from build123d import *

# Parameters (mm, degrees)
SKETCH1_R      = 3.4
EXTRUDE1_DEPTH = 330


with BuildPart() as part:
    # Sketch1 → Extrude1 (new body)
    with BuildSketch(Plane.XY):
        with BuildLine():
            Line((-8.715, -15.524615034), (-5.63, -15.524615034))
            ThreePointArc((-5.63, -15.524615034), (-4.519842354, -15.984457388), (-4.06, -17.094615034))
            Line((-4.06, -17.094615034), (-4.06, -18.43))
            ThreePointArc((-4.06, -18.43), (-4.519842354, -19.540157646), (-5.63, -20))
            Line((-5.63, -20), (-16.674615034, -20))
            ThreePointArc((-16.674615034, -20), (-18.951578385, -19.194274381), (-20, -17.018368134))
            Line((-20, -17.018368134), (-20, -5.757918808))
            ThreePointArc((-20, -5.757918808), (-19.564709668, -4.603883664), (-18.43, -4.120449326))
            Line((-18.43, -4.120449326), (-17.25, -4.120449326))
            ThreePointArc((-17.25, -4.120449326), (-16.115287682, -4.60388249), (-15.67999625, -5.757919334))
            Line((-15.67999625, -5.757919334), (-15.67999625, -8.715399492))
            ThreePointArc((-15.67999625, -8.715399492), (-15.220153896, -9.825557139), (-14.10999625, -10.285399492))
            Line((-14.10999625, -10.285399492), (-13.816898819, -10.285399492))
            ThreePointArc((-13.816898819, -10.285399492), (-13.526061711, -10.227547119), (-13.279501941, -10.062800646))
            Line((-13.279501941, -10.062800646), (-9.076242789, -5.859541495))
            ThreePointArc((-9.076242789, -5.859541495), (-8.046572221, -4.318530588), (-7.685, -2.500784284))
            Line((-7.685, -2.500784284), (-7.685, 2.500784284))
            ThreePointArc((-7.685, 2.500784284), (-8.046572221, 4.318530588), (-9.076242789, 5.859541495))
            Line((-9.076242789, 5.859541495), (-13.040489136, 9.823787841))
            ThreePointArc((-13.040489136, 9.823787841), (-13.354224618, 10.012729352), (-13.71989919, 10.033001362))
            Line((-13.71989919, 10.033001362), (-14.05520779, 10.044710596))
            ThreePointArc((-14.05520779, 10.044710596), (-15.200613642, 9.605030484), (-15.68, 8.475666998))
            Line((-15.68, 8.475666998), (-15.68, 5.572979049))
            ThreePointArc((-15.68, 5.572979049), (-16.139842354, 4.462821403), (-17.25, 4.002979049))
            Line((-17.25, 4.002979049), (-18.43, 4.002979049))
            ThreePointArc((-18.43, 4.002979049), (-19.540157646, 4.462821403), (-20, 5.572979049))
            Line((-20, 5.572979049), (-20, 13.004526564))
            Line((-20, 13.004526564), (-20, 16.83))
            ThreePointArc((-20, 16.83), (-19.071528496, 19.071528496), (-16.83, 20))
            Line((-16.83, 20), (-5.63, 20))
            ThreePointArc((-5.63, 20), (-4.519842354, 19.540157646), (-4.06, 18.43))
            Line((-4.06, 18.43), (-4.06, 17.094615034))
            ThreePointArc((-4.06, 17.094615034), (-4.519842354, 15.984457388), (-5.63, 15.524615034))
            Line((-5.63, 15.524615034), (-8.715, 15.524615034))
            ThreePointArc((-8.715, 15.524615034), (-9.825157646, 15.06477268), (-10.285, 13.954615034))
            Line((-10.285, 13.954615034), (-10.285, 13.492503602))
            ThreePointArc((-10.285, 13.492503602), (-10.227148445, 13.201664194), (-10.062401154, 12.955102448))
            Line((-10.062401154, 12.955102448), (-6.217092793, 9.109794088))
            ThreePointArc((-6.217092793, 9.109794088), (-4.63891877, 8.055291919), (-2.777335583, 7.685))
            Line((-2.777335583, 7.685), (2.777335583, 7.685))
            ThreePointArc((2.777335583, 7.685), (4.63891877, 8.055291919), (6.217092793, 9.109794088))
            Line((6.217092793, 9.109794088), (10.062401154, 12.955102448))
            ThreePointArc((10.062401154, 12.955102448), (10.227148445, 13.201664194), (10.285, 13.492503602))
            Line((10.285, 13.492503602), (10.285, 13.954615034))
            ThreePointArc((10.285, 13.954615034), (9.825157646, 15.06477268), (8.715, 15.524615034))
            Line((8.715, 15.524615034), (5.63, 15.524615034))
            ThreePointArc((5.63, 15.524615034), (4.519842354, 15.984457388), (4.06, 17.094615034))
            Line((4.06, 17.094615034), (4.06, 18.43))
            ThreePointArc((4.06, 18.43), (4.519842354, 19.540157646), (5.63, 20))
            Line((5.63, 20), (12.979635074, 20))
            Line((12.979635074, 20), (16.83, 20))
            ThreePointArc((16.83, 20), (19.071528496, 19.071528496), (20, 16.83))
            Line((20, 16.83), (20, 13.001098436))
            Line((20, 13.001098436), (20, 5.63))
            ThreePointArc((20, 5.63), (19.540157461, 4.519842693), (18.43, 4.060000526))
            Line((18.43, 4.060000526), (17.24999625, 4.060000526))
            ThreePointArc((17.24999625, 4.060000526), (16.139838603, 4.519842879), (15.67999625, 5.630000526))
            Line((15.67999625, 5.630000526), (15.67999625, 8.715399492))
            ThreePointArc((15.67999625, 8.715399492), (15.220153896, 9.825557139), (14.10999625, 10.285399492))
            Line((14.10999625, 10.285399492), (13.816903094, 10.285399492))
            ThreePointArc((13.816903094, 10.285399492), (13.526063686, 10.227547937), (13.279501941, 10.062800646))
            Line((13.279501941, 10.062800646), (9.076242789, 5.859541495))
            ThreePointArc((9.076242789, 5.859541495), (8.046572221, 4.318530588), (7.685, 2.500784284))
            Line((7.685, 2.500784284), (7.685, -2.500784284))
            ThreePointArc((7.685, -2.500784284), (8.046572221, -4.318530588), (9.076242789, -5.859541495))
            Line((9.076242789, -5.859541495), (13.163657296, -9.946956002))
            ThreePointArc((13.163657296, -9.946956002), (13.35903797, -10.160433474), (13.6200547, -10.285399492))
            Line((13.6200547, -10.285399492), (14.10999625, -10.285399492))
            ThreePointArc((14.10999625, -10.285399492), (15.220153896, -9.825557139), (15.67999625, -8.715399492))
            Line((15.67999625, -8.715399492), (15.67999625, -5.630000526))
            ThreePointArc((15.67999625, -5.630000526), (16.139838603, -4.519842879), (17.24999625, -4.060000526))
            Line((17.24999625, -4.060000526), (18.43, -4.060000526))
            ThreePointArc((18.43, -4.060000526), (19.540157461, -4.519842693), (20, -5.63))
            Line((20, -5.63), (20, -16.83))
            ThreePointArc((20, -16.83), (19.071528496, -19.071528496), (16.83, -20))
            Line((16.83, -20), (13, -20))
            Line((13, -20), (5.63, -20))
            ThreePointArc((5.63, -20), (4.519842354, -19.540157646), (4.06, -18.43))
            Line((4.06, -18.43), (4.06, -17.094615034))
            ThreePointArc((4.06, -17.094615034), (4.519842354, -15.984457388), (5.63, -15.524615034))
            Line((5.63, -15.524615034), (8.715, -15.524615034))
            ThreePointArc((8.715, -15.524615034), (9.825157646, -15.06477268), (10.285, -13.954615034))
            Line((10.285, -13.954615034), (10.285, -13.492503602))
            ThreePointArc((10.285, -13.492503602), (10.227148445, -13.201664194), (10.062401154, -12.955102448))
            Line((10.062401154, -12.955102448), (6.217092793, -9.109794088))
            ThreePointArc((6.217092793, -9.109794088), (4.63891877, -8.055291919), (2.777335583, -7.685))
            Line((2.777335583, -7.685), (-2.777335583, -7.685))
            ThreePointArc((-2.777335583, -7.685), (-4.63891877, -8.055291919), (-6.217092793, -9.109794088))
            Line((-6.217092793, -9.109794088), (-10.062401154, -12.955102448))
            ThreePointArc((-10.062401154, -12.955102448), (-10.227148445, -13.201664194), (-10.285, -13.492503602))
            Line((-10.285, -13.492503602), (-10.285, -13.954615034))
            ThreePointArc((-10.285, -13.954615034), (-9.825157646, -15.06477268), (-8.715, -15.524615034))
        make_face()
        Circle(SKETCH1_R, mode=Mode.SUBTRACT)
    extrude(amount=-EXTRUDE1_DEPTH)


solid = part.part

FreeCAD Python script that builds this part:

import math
import FreeCAD as App
import Part
import Sketcher
from FreeCAD import Vector
Q = App.Units.Quantity

doc = App.newDocument("Part")
params = doc.addObject("Spreadsheet::Sheet", "Params")
for row, (alias, value) in enumerate([
    ("sketch1_diameter", "6.8 mm"),
    ("sketch1_radius", "1.57 mm"),
    ("sketch1_radius2", "0.76 mm"),
    ("sketch1_radius3", "3.17 mm"),
    ("sketch1_radius4", "4.75 mm"),
    ("pad1_length", "330 mm"),
], start=1):
    params.set(f"A{row}", alias)
    params.set(f"B{row}", "=" + value)
    params.setAlias(f"B{row}", alias)

body = doc.addObject("PartDesign::Body", "Body")

sketch1 = body.newObject("Sketcher::SketchObject", "Sketch")
sketch1.AttachmentSupport = (doc.getObject("XY_Plane"), [""])
sketch1.MapMode = "FlatFace"
sketch1.addGeometry([
    Part.LineSegment(Vector(-5.63, -15.52, 0), Vector(-8.71, -15.52, 0)),
    Part.ArcOfCircle(Part.Circle(Vector(-8.71, -13.95, 0), Vector(0, 0, 1), 1.57), math.radians(-180), math.radians(-90)),
    Part.LineSegment(Vector(-10.29, -13.95, 0), Vector(-10.29, -13.49, 0)),
    Part.ArcOfCircle(Part.Circle(Vector(-9.52, -13.49, 0), Vector(0, 0, 1), 0.76), math.radians(135), math.radians(180)),
    Part.LineSegment(Vector(-10.06, -12.96, 0), Vector(-6.22, -9.11, 0)),
    Part.ArcOfCircle(Part.Circle(Vector(-2.78, -12.55, 0), Vector(0, 0, 1), 4.86), math.radians(90), math.radians(135)),
    Part.LineSegment(Vector(-2.78, -7.68, 0), Vector(2.78, -7.68, 0)),
    Part.ArcOfCircle(Part.Circle(Vector(2.78, -12.55, 0), Vector(0, 0, 1), 4.86), math.radians(45), math.radians(90)),
    Part.LineSegment(Vector(6.22, -9.11, 0), Vector(10.06, -12.96, 0)),
    Part.ArcOfCircle(Part.Circle(Vector(9.52, -13.49, 0), Vector(0, 0, 1), 0.76), math.radians(0), math.radians(45)),
    Part.LineSegment(Vector(10.29, -13.49, 0), Vector(10.29, -13.95, 0)),
    Part.ArcOfCircle(Part.Circle(Vector(8.71, -13.95, 0), Vector(0, 0, 1), 1.57), math.radians(-90), math.radians(0)),
    Part.LineSegment(Vector(8.71, -15.52, 0), Vector(5.63, -15.52, 0)),
    Part.ArcOfCircle(Part.Circle(Vector(5.63, -17.09, 0), Vector(0, 0, 1), 1.57), math.radians(90), math.radians(180)),
    Part.LineSegment(Vector(4.06, -17.09, 0), Vector(4.06, -18.43, 0)),
    Part.ArcOfCircle(Part.Circle(Vector(5.63, -18.43, 0), Vector(0, 0, 1), 1.57), math.radians(-180), math.radians(-90)),
    Part.LineSegment(Vector(5.63, -20, 0), Vector(16.83, -20, 0)),
    Part.ArcOfCircle(Part.Circle(Vector(16.83, -16.83, 0), Vector(0, 0, 1), 3.17), math.radians(-90), math.radians(0)),
    Part.LineSegment(Vector(20, -16.83, 0), Vector(20, -5.63, 0)),
    Part.ArcOfCircle(Part.Circle(Vector(18.43, -5.63, 0), Vector(0, 0, 1), 1.57), math.radians(0), math.radians(90)),
    Part.LineSegment(Vector(18.43, -4.06, 0), Vector(17.25, -4.06, 0)),
    Part.ArcOfCircle(Part.Circle(Vector(17.25, -5.63, 0), Vector(0, 0, 1), 1.57), math.radians(90), math.radians(180)),
    Part.LineSegment(Vector(15.68, -5.63, 0), Vector(15.68, -8.72, 0)),
    Part.ArcOfCircle(Part.Circle(Vector(14.11, -8.72, 0), Vector(0, 0, 1), 1.57), math.radians(-90), math.radians(0)),
    Part.LineSegment(Vector(14.11, -10.29, 0), Vector(13.62, -10.29, 0)),
    Part.ArcOfCircle(Part.Circle(Vector(13.81, -9.55, 0), Vector(0, 0, 1), 0.76), math.radians(-149), math.radians(-105)),
    Part.LineSegment(Vector(13.16, -9.95, 0), Vector(9.08, -5.86, 0)),
    Part.ArcOfCircle(Part.Circle(Vector(12.44, -2.5, 0), Vector(0, 0, 1), 4.75), math.radians(-180), math.radians(-135)),
    Part.LineSegment(Vector(7.68, -2.5, 0), Vector(7.68, 2.5, 0)),
    Part.ArcOfCircle(Part.Circle(Vector(12.44, 2.5, 0), Vector(0, 0, 1), 4.75), math.radians(135), math.radians(180)),
    Part.LineSegment(Vector(9.08, 5.86, 0), Vector(13.28, 10.06, 0)),
    Part.ArcOfCircle(Part.Circle(Vector(13.82, 9.53, 0), Vector(0, 0, 1), 0.76), math.radians(90), math.radians(135)),
    Part.LineSegment(Vector(13.82, 10.29, 0), Vector(14.11, 10.29, 0)),
    Part.ArcOfCircle(Part.Circle(Vector(14.11, 8.72, 0), Vector(0, 0, 1), 1.57), math.radians(0), math.radians(90)),
    Part.LineSegment(Vector(15.68, 8.72, 0), Vector(15.68, 5.63, 0)),
    Part.ArcOfCircle(Part.Circle(Vector(17.25, 5.63, 0), Vector(0, 0, 1), 1.57), math.radians(180), math.radians(270)),
    Part.LineSegment(Vector(17.25, 4.06, 0), Vector(18.43, 4.06, 0)),
    Part.ArcOfCircle(Part.Circle(Vector(18.43, 5.63, 0), Vector(0, 0, 1), 1.57), math.radians(-90), math.radians(0)),
    Part.LineSegment(Vector(20, 5.63, 0), Vector(20, 16.83, 0)),
    Part.ArcOfCircle(Part.Circle(Vector(16.83, 16.83, 0), Vector(0, 0, 1), 3.17), math.radians(0), math.radians(90)),
    Part.LineSegment(Vector(16.83, 20, 0), Vector(5.63, 20, 0)),
    Part.ArcOfCircle(Part.Circle(Vector(5.63, 18.43, 0), Vector(0, 0, 1), 1.57), math.radians(90), math.radians(180)),
    Part.LineSegment(Vector(4.06, 18.43, 0), Vector(4.06, 17.09, 0)),
    Part.ArcOfCircle(Part.Circle(Vector(5.63, 17.09, 0), Vector(0, 0, 1), 1.57), math.radians(-180), math.radians(-90)),
    Part.LineSegment(Vector(5.63, 15.52, 0), Vector(8.71, 15.52, 0)),
    Part.ArcOfCircle(Part.Circle(Vector(8.71, 13.95, 0), Vector(0, 0, 1), 1.57), math.radians(0), math.radians(90)),
    Part.LineSegment(Vector(10.29, 13.95, 0), Vector(10.29, 13.49, 0)),
    Part.ArcOfCircle(Part.Circle(Vector(9.52, 13.49, 0), Vector(0, 0, 1), 0.76), math.radians(-45), math.radians(0)),
    Part.LineSegment(Vector(10.06, 12.96, 0), Vector(6.22, 9.11, 0)),
    Part.ArcOfCircle(Part.Circle(Vector(2.78, 12.55, 0), Vector(0, 0, 1), 4.86), math.radians(-90), math.radians(-45)),
    Part.LineSegment(Vector(2.78, 7.68, 0), Vector(-2.78, 7.68, 0)),
    Part.ArcOfCircle(Part.Circle(Vector(-2.78, 12.55, 0), Vector(0, 0, 1), 4.86), math.radians(-135), math.radians(-90)),
    Part.LineSegment(Vector(-6.22, 9.11, 0), Vector(-10.06, 12.96, 0)),
    Part.ArcOfCircle(Part.Circle(Vector(-9.52, 13.49, 0), Vector(0, 0, 1), 0.76), math.radians(180), math.radians(225)),
    Part.LineSegment(Vector(-10.29, 13.49, 0), Vector(-10.29, 13.95, 0)),
    Part.ArcOfCircle(Part.Circle(Vector(-8.71, 13.95, 0), Vector(0, 0, 1), 1.57), math.radians(90), math.radians(180)),
    Part.LineSegment(Vector(-8.71, 15.52, 0), Vector(-5.63, 15.52, 0)),
    Part.ArcOfCircle(Part.Circle(Vector(-5.63, 17.09, 0), Vector(0, 0, 1), 1.57), math.radians(-90), math.radians(0)),
    Part.LineSegment(Vector(-4.06, 17.09, 0), Vector(-4.06, 18.43, 0)),
    Part.ArcOfCircle(Part.Circle(Vector(-5.63, 18.43, 0), Vector(0, 0, 1), 1.57), math.radians(0), math.radians(90)),
    Part.LineSegment(Vector(-5.63, 20, 0), Vector(-16.83, 20, 0)),
    Part.ArcOfCircle(Part.Circle(Vector(-16.83, 16.83, 0), Vector(0, 0, 1), 3.17), math.radians(90), math.radians(180)),
    Part.LineSegment(Vector(-20, 16.83, 0), Vector(-20, 5.57, 0)),
    Part.ArcOfCircle(Part.Circle(Vector(-18.43, 5.57, 0), Vector(0, 0, 1), 1.57), math.radians(-180), math.radians(-90)),
    Part.LineSegment(Vector(-18.43, 4, 0), Vector(-17.25, 4, 0)),
    Part.ArcOfCircle(Part.Circle(Vector(-17.25, 5.57, 0), Vector(0, 0, 1), 1.57), math.radians(-90), math.radians(0)),
    Part.LineSegment(Vector(-15.68, 5.57, 0), Vector(-15.68, 8.48, 0)),
    Part.ArcOfCircle(Part.Circle(Vector(-14.11, 8.48, 0), Vector(0, 0, 1), 1.57), math.radians(88), math.radians(180)),
    Part.LineSegment(Vector(-14.06, 10.04, 0), Vector(-13.72, 10.03, 0)),
    Part.ArcOfCircle(Part.Circle(Vector(-13.58, 9.29, 0), Vector(0, 0, 1), 0.76), math.radians(45), math.radians(101)),
    Part.LineSegment(Vector(-13.04, 9.82, 0), Vector(-9.08, 5.86, 0)),
    Part.ArcOfCircle(Part.Circle(Vector(-12.44, 2.5, 0), Vector(0, 0, 1), 4.75), math.radians(0), math.radians(45)),
    Part.LineSegment(Vector(-7.68, 2.5, 0), Vector(-7.68, -2.5, 0)),
    Part.ArcOfCircle(Part.Circle(Vector(-12.44, -2.5, 0), Vector(0, 0, 1), 4.75), math.radians(-45), math.radians(0)),
    Part.LineSegment(Vector(-9.08, -5.86, 0), Vector(-13.28, -10.06, 0)),
    Part.ArcOfCircle(Part.Circle(Vector(-13.82, -9.53, 0), Vector(0, 0, 1), 0.76), math.radians(-90), math.radians(-45)),
    Part.LineSegment(Vector(-13.82, -10.29, 0), Vector(-14.11, -10.29, 0)),
    Part.ArcOfCircle(Part.Circle(Vector(-14.11, -8.72, 0), Vector(0, 0, 1), 1.57), math.radians(180), math.radians(270)),
    Part.LineSegment(Vector(-15.68, -8.72, 0), Vector(-15.68, -5.76, 0)),
    Part.ArcOfCircle(Part.Circle(Vector(-17.25, -5.69, 0), Vector(0, 0, 1), 1.57), math.radians(-2), math.radians(90)),
    Part.LineSegment(Vector(-17.25, -4.12, 0), Vector(-18.43, -4.12, 0)),
    Part.ArcOfCircle(Part.Circle(Vector(-18.43, -5.69, 0), Vector(0, 0, 1), 1.57), math.radians(90), math.radians(182)),
    Part.LineSegment(Vector(-20, -5.76, 0), Vector(-20, -17.02, 0)),
    Part.ArcOfCircle(Part.Circle(Vector(-16.84, -16.83, 0), Vector(0, 0, 1), 3.17), math.radians(-177), math.radians(-87)),
    Part.LineSegment(Vector(-16.67, -20, 0), Vector(-5.63, -20, 0)),
    Part.ArcOfCircle(Part.Circle(Vector(-5.63, -18.43, 0), Vector(0, 0, 1), 1.57), math.radians(-90), math.radians(0)),
    Part.LineSegment(Vector(-4.06, -18.43, 0), Vector(-4.06, -17.09, 0)),
    Part.ArcOfCircle(Part.Circle(Vector(-5.63, -17.09, 0), Vector(0, 0, 1), 1.57), math.radians(0), math.radians(90)),
    Part.Circle(Vector(0, 0, 0), Vector(0, 0, 1), 3.4),
], False)
sketch1.addConstraint([
    Sketcher.Constraint("Tangent", 0, 2, 1, 2),
    Sketcher.Constraint("Tangent", 1, 1, 2, 1),
    Sketcher.Constraint("Tangent", 2, 2, 3, 2),
    Sketcher.Constraint("Tangent", 3, 1, 4, 1),
    Sketcher.Constraint("Tangent", 4, 2, 5, 2),
    Sketcher.Constraint("Tangent", 5, 1, 6, 1),
    Sketcher.Constraint("Tangent", 6, 2, 7, 2),
    Sketcher.Constraint("Tangent", 7, 1, 8, 1),
    Sketcher.Constraint("Tangent", 8, 2, 9, 2),
    Sketcher.Constraint("Tangent", 9, 1, 10, 1),
    Sketcher.Constraint("Tangent", 10, 2, 11, 2),
    Sketcher.Constraint("Tangent", 11, 1, 12, 1),
    Sketcher.Constraint("Tangent", 12, 2, 13, 1),
    Sketcher.Constraint("Tangent", 13, 2, 14, 1),
    Sketcher.Constraint("Tangent", 14, 2, 15, 1),
    Sketcher.Constraint("Tangent", 15, 2, 16, 1),
    Sketcher.Constraint("Tangent", 16, 2, 17, 1),
    Sketcher.Constraint("Tangent", 17, 2, 18, 1),
    Sketcher.Constraint("Tangent", 18, 2, 19, 1),
    Sketcher.Constraint("Tangent", 19, 2, 20, 1),
    Sketcher.Constraint("Tangent", 20, 2, 21, 1),
    Sketcher.Constraint("Tangent", 21, 2, 22, 1),
    Sketcher.Constraint("Tangent", 22, 2, 23, 2),
    Sketcher.Constraint("Tangent", 23, 1, 24, 1),
    Sketcher.Constraint("Coincident", 24, 2, 25, 2),
    Sketcher.Constraint("Coincident", 25, 1, 26, 1),
    Sketcher.Constraint("Tangent", 26, 2, 27, 2),
    Sketcher.Constraint("Tangent", 27, 1, 28, 1),
    Sketcher.Constraint("Tangent", 28, 2, 29, 2),
    Sketcher.Constraint("Tangent", 29, 1, 30, 1),
    Sketcher.Constraint("Tangent", 30, 2, 31, 2),
    Sketcher.Constraint("Tangent", 31, 1, 32, 1),
    Sketcher.Constraint("Tangent", 32, 2, 33, 2),
    Sketcher.Constraint("Tangent", 33, 1, 34, 1),
    Sketcher.Constraint("Tangent", 34, 2, 35, 1),
    Sketcher.Constraint("Tangent", 35, 2, 36, 1),
    Sketcher.Constraint("Tangent", 36, 2, 37, 1),
    Sketcher.Constraint("Tangent", 37, 2, 38, 1),
    Sketcher.Constraint("Tangent", 38, 2, 39, 1),
    Sketcher.Constraint("Tangent", 39, 2, 40, 1),
    Sketcher.Constraint("Tangent", 40, 2, 41, 1),
    Sketcher.Constraint("Tangent", 41, 2, 42, 1),
    Sketcher.Constraint("Tangent", 42, 2, 43, 1),
    Sketcher.Constraint("Tangent", 43, 2, 44, 1),
    Sketcher.Constraint("Tangent", 44, 2, 45, 2),
    Sketcher.Constraint("Tangent", 45, 1, 46, 1),
    Sketcher.Constraint("Tangent", 46, 2, 47, 2),
    Sketcher.Constraint("Tangent", 47, 1, 48, 1),
    Sketcher.Constraint("Tangent", 48, 2, 49, 2),
    Sketcher.Constraint("Tangent", 49, 1, 50, 1),
    Sketcher.Constraint("Tangent", 50, 2, 51, 2),
    Sketcher.Constraint("Tangent", 51, 1, 52, 1),
    Sketcher.Constraint("Tangent", 52, 2, 53, 2),
    Sketcher.Constraint("Tangent", 53, 1, 54, 1),
    Sketcher.Constraint("Tangent", 54, 2, 55, 2),
    Sketcher.Constraint("Tangent", 55, 1, 56, 1),
    Sketcher.Constraint("Tangent", 56, 2, 57, 1),
    Sketcher.Constraint("Tangent", 57, 2, 58, 1),
    Sketcher.Constraint("Tangent", 58, 2, 59, 1),
    Sketcher.Constraint("Tangent", 59, 2, 60, 1),
    Sketcher.Constraint("Tangent", 60, 2, 61, 1),
    Sketcher.Constraint("Tangent", 61, 2, 62, 1),
    Sketcher.Constraint("Tangent", 62, 2, 63, 1),
    Sketcher.Constraint("Tangent", 63, 2, 64, 1),
    Sketcher.Constraint("Tangent", 64, 2, 65, 1),
    Sketcher.Constraint("Tangent", 65, 2, 66, 1),
    Sketcher.Constraint("Tangent", 66, 2, 67, 2),
    Sketcher.Constraint("Tangent", 67, 1, 68, 1),
    Sketcher.Constraint("Coincident", 68, 2, 69, 2),
    Sketcher.Constraint("Tangent", 69, 1, 70, 1),
    Sketcher.Constraint("Tangent", 70, 2, 71, 2),
    Sketcher.Constraint("Tangent", 71, 1, 72, 1),
    Sketcher.Constraint("Tangent", 72, 2, 73, 2),
    Sketcher.Constraint("Tangent", 73, 1, 74, 1),
    Sketcher.Constraint("Tangent", 74, 2, 75, 2),
    Sketcher.Constraint("Coincident", 75, 1, 76, 1),
    Sketcher.Constraint("Tangent", 76, 2, 77, 2),
    Sketcher.Constraint("Tangent", 77, 1, 78, 1),
    Sketcher.Constraint("Coincident", 78, 2, 79, 1),
    Sketcher.Constraint("Coincident", 79, 2, 80, 1),
    Sketcher.Constraint("Coincident", 80, 2, 81, 1),
    Sketcher.Constraint("Coincident", 81, 2, 82, 1),
    Sketcher.Constraint("Coincident", 82, 2, 83, 1),
    Sketcher.Constraint("Coincident", 83, 2, 84, 1),
    Sketcher.Constraint("Tangent", 84, 2, 85, 1),
    Sketcher.Constraint("Tangent", 85, 2, 86, 1),
    Sketcher.Constraint("Tangent", 86, 2, 87, 1),
    Sketcher.Constraint("Tangent", 87, 2, 0, 1),
    Sketcher.Constraint("Horizontal", 0),
    Sketcher.Constraint("Vertical", 2),
    Sketcher.Constraint("Horizontal", 6),
    Sketcher.Constraint("Vertical", 10),
    Sketcher.Constraint("Horizontal", 12),
    Sketcher.Constraint("Vertical", 14),
    Sketcher.Constraint("Horizontal", 16),
    Sketcher.Constraint("Vertical", 18),
    Sketcher.Constraint("Horizontal", 20),
    Sketcher.Constraint("Vertical", 22),
    Sketcher.Constraint("Horizontal", 24),
    Sketcher.Constraint("Vertical", 28),
    Sketcher.Constraint("Horizontal", 32),
    Sketcher.Constraint("Vertical", 34),
    Sketcher.Constraint("Horizontal", 36),
    Sketcher.Constraint("Vertical", 38),
    Sketcher.Constraint("Horizontal", 40),
    Sketcher.Constraint("Vertical", 42),
    Sketcher.Constraint("Horizontal", 44),
    Sketcher.Constraint("Vertical", 46),
    Sketcher.Constraint("Horizontal", 50),
    Sketcher.Constraint("Vertical", 54),
    Sketcher.Constraint("Horizontal", 56),
    Sketcher.Constraint("Vertical", 58),
    Sketcher.Constraint("Horizontal", 60),
    Sketcher.Constraint("Vertical", 62),
    Sketcher.Constraint("Horizontal", 64),
    Sketcher.Constraint("Vertical", 66),
    Sketcher.Constraint("Vertical", 72),
    Sketcher.Constraint("Horizontal", 76),
    Sketcher.Constraint("Vertical", 78),
    Sketcher.Constraint("Horizontal", 80),
    Sketcher.Constraint("Vertical", 82),
    Sketcher.Constraint("Horizontal", 84),
    Sketcher.Constraint("Vertical", 86),
    Sketcher.Constraint("Coincident", 88, 3, -1, 1),
    Sketcher.Constraint("Equal", 5, 7),
    Sketcher.Constraint("Equal", 3, 9),
    Sketcher.Constraint("Equal", 1, 11),
    Sketcher.Constraint("Equal", 11, 13),
    Sketcher.Constraint("Equal", 13, 15),
    Sketcher.Constraint("Equal", 15, 19),
    Sketcher.Constraint("Equal", 19, 21),
    Sketcher.Constraint("Equal", 21, 23),
    Sketcher.Constraint("Equal", 9, 25),
    Sketcher.Constraint("Equal", 27, 29),
    Sketcher.Constraint("Equal", 25, 31),
    Sketcher.Constraint("Equal", 23, 33),
    Sketcher.Constraint("Equal", 33, 35),
    Sketcher.Constraint("Equal", 35, 37),
    Sketcher.Constraint("Equal", 17, 39),
    Sketcher.Constraint("Equal", 37, 41),
    Sketcher.Constraint("Equal", 41, 43),
    Sketcher.Constraint("Equal", 43, 45),
    Sketcher.Constraint("Equal", 31, 47),
    Sketcher.Constraint("Equal", 7, 49),
    Sketcher.Constraint("Equal", 49, 51),
    Sketcher.Constraint("Equal", 47, 53),
    Sketcher.Constraint("Equal", 45, 55),
    Sketcher.Constraint("Equal", 55, 57),
    Sketcher.Constraint("Equal", 57, 59),
    Sketcher.Constraint("Equal", 39, 61),
    Sketcher.Constraint("Equal", 59, 63),
    Sketcher.Constraint("Equal", 63, 65),
    Sketcher.Constraint("Equal", 65, 67),
    Sketcher.Constraint("Equal", 53, 69),
    Sketcher.Constraint("Equal", 29, 71),
    Sketcher.Constraint("Equal", 71, 73),
    Sketcher.Constraint("Equal", 69, 75),
    Sketcher.Constraint("Equal", 67, 77),
    Sketcher.Constraint("Equal", 77, 79),
    Sketcher.Constraint("Equal", 79, 81),
    Sketcher.Constraint("Equal", 61, 83),
    Sketcher.Constraint("Equal", 81, 85),
    Sketcher.Constraint("Equal", 85, 87),
    Sketcher.Constraint("Symmetric", 1, 3, 45, 3, -1, 1),
    Sketcher.Constraint("Symmetric", 5, 3, 49, 3, -1, 1),
    Sketcher.Constraint("Symmetric", 9, 3, 53, 3, -1, 1),
    Sketcher.Constraint("Symmetric", 13, 3, 57, 3, -1, 1),
    Sketcher.Constraint("Symmetric", 17, 3, 61, 3, -1, 1),
    Sketcher.Constraint("Symmetric", 27, 3, 71, 3, -1, 1),
    Sketcher.Constraint("Symmetric", 31, 3, 75, 3, -1, 1),
    Sketcher.Constraint("Symmetric", 41, 3, 85, 3, -1, 1),
    Sketcher.Constraint("Symmetric", 3, 3, 9, 3, -2),
    Sketcher.Constraint("Symmetric", 43, 3, 57, 3, -2),
    Sketcher.Constraint("Symmetric", 39, 3, 61, 3, -2),
    Sketcher.Constraint("Symmetric", 23, 3, 77, 3, -2),
    Sketcher.Constraint("Symmetric", 48, 2, 51, 1, -2),
    Sketcher.Constraint("Symmetric", 29, 1, 70, 2, -2),
    Sketcher.Constraint("Symmetric", 26, 2, 73, 1, -2),
    Sketcher.Constraint("Symmetric", 21, 3, 35, 3, -1),
    Sketcher.Constraint("Perpendicular", 4, 8),
    Sketcher.Constraint("Parallel", 8, 26),
    Sketcher.Constraint("Perpendicular", 26, 30),
    Sketcher.Constraint("Horizontal", 78, 2, 81, 2),
    Sketcher.Constraint("Vertical", 64, 2, 79, 2),
    Sketcher.Constraint("Vertical", 63, 2, 80, 2),
    Sketcher.Constraint("Vertical", 62, 2, 81, 2),
    Sketcher.Constraint("Equal", 60, 18),
    Sketcher.Constraint("Diameter", 88, 6.8),
    Sketcher.Constraint("Angle", 68, Q("-2 deg")),
    Sketcher.Constraint("Radius", 1, 1.57),
    Sketcher.Constraint("Radius", 3, 0.76),
    Sketcher.Constraint("Radius", 17, 3.17),
    Sketcher.Constraint("Radius", 27, 4.75),
    Sketcher.Constraint("DistanceX", 16, 1, 16, 2, 11.2),
    Sketcher.Constraint("DistanceY", 15, 2, -1, 1, 20.0),
    Sketcher.Constraint("DistanceX", -1, 1, 17, 2, 20.0),
    Sketcher.Constraint("DistanceX", 64, 1, 64, 2, 1.18),
    Sketcher.Constraint("DistanceX", 0, 2, 0, 1, 3.085),
    Sketcher.Constraint("Radius", 5, 4.864551),
    Sketcher.Constraint("DistanceY", 22, 2, 22, 1, 3.085399),
    Sketcher.Constraint("DistanceX", -1, 1, 27, 3, 12.435),
    Sketcher.Constraint("DistanceY", 5, 1, -1, 1, 7.685),
    Sketcher.Constraint("DistanceY", -1, 1, 68, 2, 10.033001),
    Sketcher.Constraint("DistanceX", 6, 1, 6, 2, 5.554671),
    Sketcher.Constraint("DistanceX", 24, 2, 24, 1, 0.489942),
    Sketcher.Constraint("DistanceY", 2, 1, 2, 2, 0.462111),
    Sketcher.Constraint("DistanceY", 28, 1, 28, 2, 5.001569),
    Sketcher.Constraint("DistanceY", 62, 2, 62, 1, 11.257021),
    Sketcher.Constraint("DistanceY", 78, 1, 78, 2, 2.95748),
    Sketcher.Constraint("DistanceY", 82, 2, 82, 1, 11.260449),
    Sketcher.Constraint("DistanceX", 68, 2, -1, 1, 13.719899),
    Sketcher.Constraint("DistanceX", 75, 1, -1, 1, 13.816899),
    Sketcher.Constraint("DistanceX", 20, 2, 20, 1, 1.180004),
    Sketcher.Constraint("DistanceX", 84, 1, 84, 2, 11.044615),
    Sketcher.Constraint("DistanceX", -1, 1, 25, 3, 13.811732),
    Sketcher.Constraint("DistanceY", 79, 3, -1, 1, 5.690449),
])
sketch1.setExpression("Constraints[187]", "Params.sketch1_diameter")
sketch1.setExpression("Constraints[189]", "Params.sketch1_radius")
sketch1.setExpression("Constraints[190]", "Params.sketch1_radius2")
sketch1.setExpression("Constraints[191]", "Params.sketch1_radius3")
sketch1.setExpression("Constraints[192]", "Params.sketch1_radius4")
pad1 = body.newObject("PartDesign::Pad", "Pad")
pad1.Profile = sketch1
pad1.setExpression("Length", "Params.pad1_length")
pad1.Reversed = True

doc.recompute()
